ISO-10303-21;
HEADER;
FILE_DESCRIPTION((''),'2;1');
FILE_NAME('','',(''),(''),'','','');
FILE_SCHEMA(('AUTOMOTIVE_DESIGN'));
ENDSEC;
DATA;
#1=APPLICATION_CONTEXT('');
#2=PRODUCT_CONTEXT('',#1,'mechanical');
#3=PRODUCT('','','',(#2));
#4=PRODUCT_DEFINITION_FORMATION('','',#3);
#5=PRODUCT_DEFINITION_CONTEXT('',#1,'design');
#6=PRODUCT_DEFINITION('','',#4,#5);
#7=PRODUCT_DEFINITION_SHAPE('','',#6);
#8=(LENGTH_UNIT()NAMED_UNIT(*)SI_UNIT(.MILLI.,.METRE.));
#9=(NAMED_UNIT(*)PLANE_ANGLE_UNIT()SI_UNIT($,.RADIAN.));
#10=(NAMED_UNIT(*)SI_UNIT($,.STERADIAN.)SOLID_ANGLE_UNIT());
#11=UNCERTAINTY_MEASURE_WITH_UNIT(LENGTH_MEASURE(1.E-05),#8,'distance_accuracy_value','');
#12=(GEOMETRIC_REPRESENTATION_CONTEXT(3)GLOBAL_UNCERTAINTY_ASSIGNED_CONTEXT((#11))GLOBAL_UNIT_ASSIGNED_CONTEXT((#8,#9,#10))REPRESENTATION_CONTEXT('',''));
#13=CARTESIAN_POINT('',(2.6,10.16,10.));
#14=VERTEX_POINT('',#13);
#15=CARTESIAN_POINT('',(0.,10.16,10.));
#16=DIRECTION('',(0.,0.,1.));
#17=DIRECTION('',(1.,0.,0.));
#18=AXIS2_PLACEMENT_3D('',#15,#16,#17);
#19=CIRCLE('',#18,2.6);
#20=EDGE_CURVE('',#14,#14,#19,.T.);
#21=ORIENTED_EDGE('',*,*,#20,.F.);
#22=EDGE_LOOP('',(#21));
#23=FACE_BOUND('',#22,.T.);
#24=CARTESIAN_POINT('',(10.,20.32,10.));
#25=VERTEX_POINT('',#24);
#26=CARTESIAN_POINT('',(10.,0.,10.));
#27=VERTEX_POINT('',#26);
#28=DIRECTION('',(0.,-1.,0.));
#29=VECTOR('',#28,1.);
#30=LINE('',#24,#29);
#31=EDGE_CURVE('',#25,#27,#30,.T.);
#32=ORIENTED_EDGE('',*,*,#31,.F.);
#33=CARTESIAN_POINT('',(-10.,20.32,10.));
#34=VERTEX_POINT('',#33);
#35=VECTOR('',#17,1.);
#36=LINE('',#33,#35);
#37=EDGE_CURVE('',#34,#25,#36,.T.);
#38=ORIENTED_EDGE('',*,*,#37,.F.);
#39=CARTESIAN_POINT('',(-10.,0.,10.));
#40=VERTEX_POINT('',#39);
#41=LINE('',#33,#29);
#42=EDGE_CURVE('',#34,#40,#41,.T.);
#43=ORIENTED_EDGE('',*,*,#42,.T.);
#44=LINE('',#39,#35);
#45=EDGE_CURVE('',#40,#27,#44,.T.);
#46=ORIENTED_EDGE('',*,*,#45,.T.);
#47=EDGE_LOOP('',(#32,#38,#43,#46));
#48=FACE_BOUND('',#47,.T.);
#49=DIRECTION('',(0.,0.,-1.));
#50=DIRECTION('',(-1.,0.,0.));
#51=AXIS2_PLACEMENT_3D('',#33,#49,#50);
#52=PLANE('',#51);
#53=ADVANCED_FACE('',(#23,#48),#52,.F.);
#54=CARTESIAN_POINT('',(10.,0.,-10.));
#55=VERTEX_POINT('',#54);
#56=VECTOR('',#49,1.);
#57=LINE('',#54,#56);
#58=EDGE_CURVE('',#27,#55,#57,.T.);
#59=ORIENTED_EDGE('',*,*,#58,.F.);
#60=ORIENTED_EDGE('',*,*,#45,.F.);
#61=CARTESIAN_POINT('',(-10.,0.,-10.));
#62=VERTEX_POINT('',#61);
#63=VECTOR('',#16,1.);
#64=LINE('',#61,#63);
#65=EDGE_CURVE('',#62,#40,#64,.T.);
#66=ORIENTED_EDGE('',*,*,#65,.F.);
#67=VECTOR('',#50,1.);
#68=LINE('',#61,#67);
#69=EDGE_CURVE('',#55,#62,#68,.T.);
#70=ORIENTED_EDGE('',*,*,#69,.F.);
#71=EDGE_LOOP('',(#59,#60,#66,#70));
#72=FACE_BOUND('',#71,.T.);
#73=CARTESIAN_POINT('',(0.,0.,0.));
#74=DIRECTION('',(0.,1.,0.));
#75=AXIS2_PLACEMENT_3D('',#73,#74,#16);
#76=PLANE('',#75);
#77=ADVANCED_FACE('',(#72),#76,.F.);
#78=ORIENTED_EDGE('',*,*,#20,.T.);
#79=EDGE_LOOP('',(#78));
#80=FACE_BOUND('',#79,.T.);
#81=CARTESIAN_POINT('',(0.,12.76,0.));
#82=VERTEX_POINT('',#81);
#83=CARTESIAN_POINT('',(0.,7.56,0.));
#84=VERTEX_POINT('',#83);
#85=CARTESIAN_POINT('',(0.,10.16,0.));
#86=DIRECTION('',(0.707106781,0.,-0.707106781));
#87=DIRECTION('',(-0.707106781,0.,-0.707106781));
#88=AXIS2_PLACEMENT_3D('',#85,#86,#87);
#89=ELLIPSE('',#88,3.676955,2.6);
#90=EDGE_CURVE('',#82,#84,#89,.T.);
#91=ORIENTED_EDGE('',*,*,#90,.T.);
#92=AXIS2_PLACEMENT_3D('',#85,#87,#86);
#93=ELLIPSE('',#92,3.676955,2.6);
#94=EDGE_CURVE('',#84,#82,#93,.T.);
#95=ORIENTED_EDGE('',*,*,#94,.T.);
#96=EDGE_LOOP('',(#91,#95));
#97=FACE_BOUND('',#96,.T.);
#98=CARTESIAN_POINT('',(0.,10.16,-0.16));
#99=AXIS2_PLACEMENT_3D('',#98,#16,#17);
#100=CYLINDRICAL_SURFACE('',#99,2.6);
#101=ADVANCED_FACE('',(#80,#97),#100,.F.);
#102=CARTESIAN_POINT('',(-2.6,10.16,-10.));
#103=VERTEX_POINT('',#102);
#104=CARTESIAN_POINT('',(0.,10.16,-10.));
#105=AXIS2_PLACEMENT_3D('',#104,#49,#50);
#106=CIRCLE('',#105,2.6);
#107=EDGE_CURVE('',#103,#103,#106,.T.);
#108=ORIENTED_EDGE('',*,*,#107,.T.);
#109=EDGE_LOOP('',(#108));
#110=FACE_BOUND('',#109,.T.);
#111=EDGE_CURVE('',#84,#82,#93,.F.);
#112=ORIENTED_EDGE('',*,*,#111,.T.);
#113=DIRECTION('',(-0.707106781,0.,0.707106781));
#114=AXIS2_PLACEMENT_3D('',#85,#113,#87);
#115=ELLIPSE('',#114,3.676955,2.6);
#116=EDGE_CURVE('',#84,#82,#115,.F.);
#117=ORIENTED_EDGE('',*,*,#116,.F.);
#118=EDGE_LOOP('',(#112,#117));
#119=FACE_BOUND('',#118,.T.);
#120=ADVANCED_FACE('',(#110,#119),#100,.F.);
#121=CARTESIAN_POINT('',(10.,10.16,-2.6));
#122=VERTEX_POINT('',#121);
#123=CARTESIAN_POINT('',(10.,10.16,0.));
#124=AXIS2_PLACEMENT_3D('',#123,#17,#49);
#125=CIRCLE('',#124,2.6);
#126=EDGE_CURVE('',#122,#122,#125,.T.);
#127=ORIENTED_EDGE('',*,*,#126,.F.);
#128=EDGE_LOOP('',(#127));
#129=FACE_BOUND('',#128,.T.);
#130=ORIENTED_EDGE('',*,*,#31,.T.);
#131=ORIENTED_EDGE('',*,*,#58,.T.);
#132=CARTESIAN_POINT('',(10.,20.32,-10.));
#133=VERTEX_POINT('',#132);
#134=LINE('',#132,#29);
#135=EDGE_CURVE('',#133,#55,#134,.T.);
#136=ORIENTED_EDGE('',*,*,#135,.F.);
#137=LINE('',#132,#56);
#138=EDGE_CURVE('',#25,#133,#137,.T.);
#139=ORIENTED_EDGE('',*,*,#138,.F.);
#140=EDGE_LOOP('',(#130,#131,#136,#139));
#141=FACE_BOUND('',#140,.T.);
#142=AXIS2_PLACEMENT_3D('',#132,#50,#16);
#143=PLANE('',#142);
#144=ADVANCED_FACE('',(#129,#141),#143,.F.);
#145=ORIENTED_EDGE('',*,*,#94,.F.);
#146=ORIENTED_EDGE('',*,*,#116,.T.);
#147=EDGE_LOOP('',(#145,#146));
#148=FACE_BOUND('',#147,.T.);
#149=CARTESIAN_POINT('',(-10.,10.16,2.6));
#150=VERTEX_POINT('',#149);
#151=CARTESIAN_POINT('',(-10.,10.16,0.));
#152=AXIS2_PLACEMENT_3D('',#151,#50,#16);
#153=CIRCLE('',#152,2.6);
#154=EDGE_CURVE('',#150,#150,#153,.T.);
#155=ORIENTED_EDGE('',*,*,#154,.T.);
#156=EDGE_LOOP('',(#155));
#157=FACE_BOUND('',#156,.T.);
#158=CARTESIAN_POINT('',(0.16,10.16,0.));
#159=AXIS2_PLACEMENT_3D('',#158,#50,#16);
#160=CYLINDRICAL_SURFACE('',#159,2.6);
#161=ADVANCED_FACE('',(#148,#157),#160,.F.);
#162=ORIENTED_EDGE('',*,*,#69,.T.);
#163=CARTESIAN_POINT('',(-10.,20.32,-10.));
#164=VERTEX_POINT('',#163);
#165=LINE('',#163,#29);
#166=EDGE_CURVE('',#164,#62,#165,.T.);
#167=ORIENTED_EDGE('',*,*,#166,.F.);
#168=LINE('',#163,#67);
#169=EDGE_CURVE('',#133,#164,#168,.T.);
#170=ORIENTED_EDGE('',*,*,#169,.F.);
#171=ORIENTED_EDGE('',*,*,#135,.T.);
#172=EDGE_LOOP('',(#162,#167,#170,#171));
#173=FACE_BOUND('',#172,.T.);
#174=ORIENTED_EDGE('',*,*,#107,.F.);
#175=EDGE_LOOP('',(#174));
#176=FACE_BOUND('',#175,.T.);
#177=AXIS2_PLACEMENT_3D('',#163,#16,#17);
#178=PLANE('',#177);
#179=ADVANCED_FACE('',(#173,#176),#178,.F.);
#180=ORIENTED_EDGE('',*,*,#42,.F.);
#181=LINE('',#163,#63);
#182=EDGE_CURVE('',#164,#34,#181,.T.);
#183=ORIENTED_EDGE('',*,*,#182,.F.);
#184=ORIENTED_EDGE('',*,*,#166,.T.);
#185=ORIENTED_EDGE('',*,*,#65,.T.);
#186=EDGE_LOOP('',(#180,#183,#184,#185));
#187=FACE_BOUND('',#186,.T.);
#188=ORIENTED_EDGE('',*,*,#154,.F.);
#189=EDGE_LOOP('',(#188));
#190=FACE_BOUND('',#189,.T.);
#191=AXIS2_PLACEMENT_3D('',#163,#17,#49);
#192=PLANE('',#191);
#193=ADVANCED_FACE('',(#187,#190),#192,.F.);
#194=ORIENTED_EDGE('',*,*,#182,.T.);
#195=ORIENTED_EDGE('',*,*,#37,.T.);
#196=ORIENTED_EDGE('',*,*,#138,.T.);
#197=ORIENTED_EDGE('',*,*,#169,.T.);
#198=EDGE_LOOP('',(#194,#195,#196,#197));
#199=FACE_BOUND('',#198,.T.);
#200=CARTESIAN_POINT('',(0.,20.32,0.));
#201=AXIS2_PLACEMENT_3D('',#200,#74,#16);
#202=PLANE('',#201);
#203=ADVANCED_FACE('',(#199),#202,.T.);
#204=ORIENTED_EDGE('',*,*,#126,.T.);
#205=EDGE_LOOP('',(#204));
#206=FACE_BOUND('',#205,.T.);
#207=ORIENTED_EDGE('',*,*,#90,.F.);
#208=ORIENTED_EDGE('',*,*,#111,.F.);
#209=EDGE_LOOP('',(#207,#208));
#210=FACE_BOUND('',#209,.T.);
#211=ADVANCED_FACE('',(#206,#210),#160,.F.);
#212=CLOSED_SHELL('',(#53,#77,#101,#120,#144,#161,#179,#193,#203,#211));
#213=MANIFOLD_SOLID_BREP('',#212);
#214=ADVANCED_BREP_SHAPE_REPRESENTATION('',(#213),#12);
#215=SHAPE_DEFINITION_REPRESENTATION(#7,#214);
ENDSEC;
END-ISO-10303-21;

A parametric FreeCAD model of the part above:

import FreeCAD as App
import Part
import Sketcher
from FreeCAD import Vector
Q = App.Units.Quantity


def add_polygon(sketch, points):
    """Adds a closed chain of lines whose ends are joined by coincident constraints."""
    first, n = sketch.GeometryCount, len(points)
    for a, b in zip(points, points[1:] + points[:1]):
        sketch.addGeometry(Part.LineSegment(App.Vector(*a, 0), App.Vector(*b, 0)), False)
    for i in range(n):
        sketch.addConstraint(Sketcher.Constraint("Coincident", first + i, 2, first + (i + 1) % n, 1))

doc = App.newDocument("Part")
body = doc.addObject("PartDesign::Body", "Body")

# Sketch on XZ plane
sketch1 = doc.addObject("Sketcher::SketchObject", "Sketch")
body.addObject(sketch1)
sketch1.AttachmentSupport = (doc.XZ_Plane, [""])
sketch1.MapMode = "FlatFace"
add_polygon(sketch1, [(10, -10), (-10, -10), (-10, 10), (10, 10)])  # lines 0-3
sketch1.addConstraint([
    Sketcher.Constraint("Horizontal", 0),
    Sketcher.Constraint("Vertical", 1),
    Sketcher.Constraint("Horizontal", 2),
    Sketcher.Constraint("Vertical", 3),
    Sketcher.Constraint("Symmetric", 0, 2, 2, 2, -1, 1),
    Sketcher.Constraint("Equal", 2, 1),
    Sketcher.Constraint("DistanceX", 0, 2, 0, 1, Q("20 mm")),
])
pad1 = doc.addObject("PartDesign::Pad", "Pad")
body.addObject(pad1)
pad1.Profile = sketch1
pad1.Length = 20.32
pad1.Reversed = True

# Sketch on XY plane
sketch2 = doc.addObject("Sketcher::SketchObject", "Sketch001")
body.addObject(sketch2)
sketch2.AttachmentSupport = (doc.XY_Plane, [""])
sketch2.MapMode = "FlatFace"
sketch2.AttachmentOffset = App.Placement(Vector(0, 0, 10), App.Rotation())
sketch2.addGeometry(Part.Circle(Vector(0, 10.2, 0), Vector(0, 0, 1), 2.6), False)
sketch2.addConstraint([
    Sketcher.Constraint("PointOnObject", 0, 3, -2),
    Sketcher.Constraint("Diameter", 0, Q("5.2 mm")),
    Sketcher.Constraint("DistanceY", -1, 1, 0, 3, Q("10.16 mm")),
])
pocket1 = doc.addObject("PartDesign::Pocket", "Pocket")
body.addObject(pocket1)
pocket1.Profile = sketch2
pocket1.Length = 10.16
doc.recompute()

polarpattern = doc.addObject("PartDesign::PolarPattern", "PolarPattern")
body.addObject(polarpattern)
polarpattern.Originals = [pocket1]
polarpattern.Axis = (doc.Y_Axis, [""])
polarpattern.Angle = 360
polarpattern.Occurrences = 4
body.Tip = polarpattern

doc.recompute()
